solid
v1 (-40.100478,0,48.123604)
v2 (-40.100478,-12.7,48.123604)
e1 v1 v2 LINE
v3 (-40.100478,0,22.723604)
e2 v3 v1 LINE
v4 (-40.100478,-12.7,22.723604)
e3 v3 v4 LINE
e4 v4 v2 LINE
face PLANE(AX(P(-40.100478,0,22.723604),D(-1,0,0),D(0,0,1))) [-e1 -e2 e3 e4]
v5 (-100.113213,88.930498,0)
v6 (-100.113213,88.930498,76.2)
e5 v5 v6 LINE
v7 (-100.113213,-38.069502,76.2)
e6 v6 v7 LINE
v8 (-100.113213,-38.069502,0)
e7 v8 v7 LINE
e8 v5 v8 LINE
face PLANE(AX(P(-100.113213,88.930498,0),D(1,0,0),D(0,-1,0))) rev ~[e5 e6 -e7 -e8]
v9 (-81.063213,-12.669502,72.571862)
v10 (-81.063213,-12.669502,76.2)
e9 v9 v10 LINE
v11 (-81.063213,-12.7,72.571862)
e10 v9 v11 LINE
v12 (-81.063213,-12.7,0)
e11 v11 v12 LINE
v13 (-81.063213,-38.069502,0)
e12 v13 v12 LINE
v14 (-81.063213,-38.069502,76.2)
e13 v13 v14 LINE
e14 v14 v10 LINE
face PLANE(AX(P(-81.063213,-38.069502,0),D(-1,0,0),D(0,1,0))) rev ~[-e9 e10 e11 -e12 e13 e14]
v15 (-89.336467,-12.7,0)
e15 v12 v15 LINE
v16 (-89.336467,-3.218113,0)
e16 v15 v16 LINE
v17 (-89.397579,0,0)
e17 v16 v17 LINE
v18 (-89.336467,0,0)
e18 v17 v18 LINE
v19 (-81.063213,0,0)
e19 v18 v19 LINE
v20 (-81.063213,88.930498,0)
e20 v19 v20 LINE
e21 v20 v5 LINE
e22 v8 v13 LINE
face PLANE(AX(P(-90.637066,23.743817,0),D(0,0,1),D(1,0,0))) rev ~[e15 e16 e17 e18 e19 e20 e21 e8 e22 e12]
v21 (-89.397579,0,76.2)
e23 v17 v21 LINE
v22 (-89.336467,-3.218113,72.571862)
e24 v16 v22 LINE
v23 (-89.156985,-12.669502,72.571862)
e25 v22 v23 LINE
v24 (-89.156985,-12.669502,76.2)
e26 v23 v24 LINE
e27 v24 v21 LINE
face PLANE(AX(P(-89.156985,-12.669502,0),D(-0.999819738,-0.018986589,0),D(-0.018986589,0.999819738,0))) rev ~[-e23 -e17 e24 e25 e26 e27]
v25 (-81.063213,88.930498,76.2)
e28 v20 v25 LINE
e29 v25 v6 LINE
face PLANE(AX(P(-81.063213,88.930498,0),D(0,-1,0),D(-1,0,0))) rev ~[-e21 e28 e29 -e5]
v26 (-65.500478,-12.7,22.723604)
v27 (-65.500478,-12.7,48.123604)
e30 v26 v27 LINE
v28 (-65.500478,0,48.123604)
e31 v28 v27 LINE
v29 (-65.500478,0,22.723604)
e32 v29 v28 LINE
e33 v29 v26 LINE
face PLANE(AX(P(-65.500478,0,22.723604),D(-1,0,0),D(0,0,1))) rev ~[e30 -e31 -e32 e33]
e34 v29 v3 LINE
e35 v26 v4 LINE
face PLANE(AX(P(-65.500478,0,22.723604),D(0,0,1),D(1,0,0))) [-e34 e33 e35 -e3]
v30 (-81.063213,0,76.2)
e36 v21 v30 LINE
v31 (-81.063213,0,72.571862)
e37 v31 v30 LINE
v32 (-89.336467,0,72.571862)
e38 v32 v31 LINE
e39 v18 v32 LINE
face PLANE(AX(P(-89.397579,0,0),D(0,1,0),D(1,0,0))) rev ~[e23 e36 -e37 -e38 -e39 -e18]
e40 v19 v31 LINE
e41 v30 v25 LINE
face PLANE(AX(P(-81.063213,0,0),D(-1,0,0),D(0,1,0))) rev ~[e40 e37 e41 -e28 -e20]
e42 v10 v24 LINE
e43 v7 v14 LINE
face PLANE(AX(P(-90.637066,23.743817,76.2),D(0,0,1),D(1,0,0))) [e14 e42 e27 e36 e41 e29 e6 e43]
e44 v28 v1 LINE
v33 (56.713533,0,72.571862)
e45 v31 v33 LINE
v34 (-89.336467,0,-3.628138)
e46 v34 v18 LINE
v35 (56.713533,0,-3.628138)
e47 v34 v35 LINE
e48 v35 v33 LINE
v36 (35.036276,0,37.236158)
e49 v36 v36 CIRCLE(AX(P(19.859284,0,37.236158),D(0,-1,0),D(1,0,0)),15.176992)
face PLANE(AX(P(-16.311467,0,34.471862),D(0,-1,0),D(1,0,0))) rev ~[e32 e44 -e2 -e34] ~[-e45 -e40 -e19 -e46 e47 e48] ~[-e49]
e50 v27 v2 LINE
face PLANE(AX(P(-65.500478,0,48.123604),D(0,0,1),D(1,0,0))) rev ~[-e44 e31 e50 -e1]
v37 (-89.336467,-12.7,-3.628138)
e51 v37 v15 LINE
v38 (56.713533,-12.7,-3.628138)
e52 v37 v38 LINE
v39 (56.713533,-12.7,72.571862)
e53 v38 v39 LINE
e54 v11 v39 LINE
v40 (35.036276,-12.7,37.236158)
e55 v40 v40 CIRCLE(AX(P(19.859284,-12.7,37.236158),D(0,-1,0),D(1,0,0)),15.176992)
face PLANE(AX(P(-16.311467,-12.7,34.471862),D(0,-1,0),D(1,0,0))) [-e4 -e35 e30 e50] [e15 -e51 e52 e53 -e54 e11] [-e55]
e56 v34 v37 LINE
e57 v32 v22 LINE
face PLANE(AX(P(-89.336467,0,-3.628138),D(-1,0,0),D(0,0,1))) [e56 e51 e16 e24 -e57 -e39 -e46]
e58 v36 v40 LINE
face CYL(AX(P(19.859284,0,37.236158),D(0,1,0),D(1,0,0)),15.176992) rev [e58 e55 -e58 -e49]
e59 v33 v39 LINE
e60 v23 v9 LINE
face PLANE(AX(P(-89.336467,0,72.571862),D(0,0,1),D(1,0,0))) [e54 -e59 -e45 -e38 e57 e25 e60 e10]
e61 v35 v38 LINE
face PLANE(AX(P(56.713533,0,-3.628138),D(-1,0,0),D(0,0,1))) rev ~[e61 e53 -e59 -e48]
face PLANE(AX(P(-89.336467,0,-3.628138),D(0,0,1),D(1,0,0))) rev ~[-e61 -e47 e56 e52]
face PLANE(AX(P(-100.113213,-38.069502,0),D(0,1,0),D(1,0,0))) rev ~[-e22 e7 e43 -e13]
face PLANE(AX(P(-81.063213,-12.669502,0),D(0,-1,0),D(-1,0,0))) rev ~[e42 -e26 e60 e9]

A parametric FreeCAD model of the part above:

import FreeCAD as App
import Part
import Sketcher
from FreeCAD import Vector
Q = App.Units.Quantity


def add_polygon(sketch, points):
    """Adds a closed chain of lines whose ends are joined by coincident constraints."""
    first, n = sketch.GeometryCount, len(points)
    for a, b in zip(points, points[1:] + points[:1]):
        sketch.addGeometry(Part.LineSegment(App.Vector(*a, 0), App.Vector(*b, 0)), False)
    for i in range(n):
        sketch.addConstraint(Sketcher.Constraint("Coincident", first + i, 2, first + (i + 1) % n, 1))

doc = App.newDocument("Part")
params = doc.addObject("Spreadsheet::Sheet", "Params")
for row, (alias, value) in enumerate([
    ("sketch1_width", "1 in"),
    ("sketch1_height", "3 in"),
    ("sketch1_width2", "5.75 in"),
    ("pad1_length", "0.5 in"),
    ("sketch2_height", "1 in"),
    ("sketch2_height2", "5 in"),
    ("sketch2_width", "0.75 in"),
    ("pad2_length", "3 in"),
], start=1):
    params.set(f"A{row}", alias)
    params.set(f"B{row}", "=" + value)
    params.setAlias(f"B{row}", alias)

body = doc.addObject("PartDesign::Body", "Body")

sketch1 = doc.addObject("Sketcher::SketchObject", "Sketch")
body.addObject(sketch1)
sketch1.AttachmentSupport = (doc.XZ_Plane, [""])
sketch1.MapMode = "FlatFace"
add_polygon(sketch1, [(-89.336467, 72.571862), (-89.336467, -3.628138), (56.713533, -3.628138), (56.713533, 72.571862)])
add_polygon(sketch1, [(-40.100478, 22.723604), (-65.500478, 22.723604), (-65.500478, 48.123604), (-40.100478, 48.123604)])
sketch1.addGeometry(Part.Circle(Vector(19.859284, 37.236158, 0), Vector(0, 0, 1), 15.176992), False)
sketch1.addConstraint([
    Sketcher.Constraint("Vertical", 0),
    Sketcher.Constraint("Horizontal", 1),
    Sketcher.Constraint("Vertical", 2),
    Sketcher.Constraint("Horizontal", 3),
    Sketcher.Constraint("Horizontal", 4),
    Sketcher.Constraint("Vertical", 5),
    Sketcher.Constraint("Horizontal", 6),
    Sketcher.Constraint("Vertical", 7),
    Sketcher.Constraint("Equal", 6, 5),
    Sketcher.Constraint("DistanceX", 4, 2, 4, 1, Q("1 in")),
    Sketcher.Constraint("DistanceY", 0, 2, 0, 1, Q("3 in")),
    Sketcher.Constraint("DistanceX", 1, 1, 1, 2, Q("5.75 in")),
    Sketcher.Constraint("Diameter", 8, 30.353984),
    Sketcher.Constraint("DistanceY", -1, 1, 8, 3, 37.236158),
    Sketcher.Constraint("DistanceY", -1, 1, 2, 2, 72.571862),
    Sketcher.Constraint("DistanceX", 4, 2, -1, 1, 65.500478),
    Sketcher.Constraint("DistanceX", 0, 2, 8, 3, 109.195751),
    Sketcher.Constraint("DistanceX", 0, 2, 4, 2, 23.835989),
    Sketcher.Constraint("DistanceY", -1, 1, 4, 2, 22.723604),
])
sketch1.setExpression("Constraints[17]", "Params.sketch1_width")
sketch1.setExpression("Constraints[18]", "Params.sketch1_height")
sketch1.setExpression("Constraints[19]", "Params.sketch1_width2")
pad1 = doc.addObject("PartDesign::Pad", "Pad")
body.addObject(pad1)
pad1.Profile = sketch1
pad1.setExpression("Length", "Params.pad1_length")

sketch2 = doc.addObject("Sketcher::SketchObject", "Sketch001")
body.addObject(sketch2)
sketch2.AttachmentSupport = (doc.XY_Plane, [""])
sketch2.MapMode = "FlatFace"
add_polygon(sketch2, [(-100.113213, -38.069502), (-81.063213, -38.069502), (-81.063213, -12.669502), (-89.156985, -12.669502), (-89.397579, 0), (-81.063213, 0), (-81.063213, 88.930498), (-100.113213, 88.930498)])
sketch2.addConstraint([
    Sketcher.Constraint("Horizontal", 0),
    Sketcher.Constraint("Vertical", 1),
    Sketcher.Constraint("Horizontal", 2),
    Sketcher.Constraint("Horizontal", 4),
    Sketcher.Constraint("Vertical", 5),
    Sketcher.Constraint("Horizontal", 6),
    Sketcher.Constraint("Vertical", 7),
    Sketcher.Constraint("PointOnObject", 3, 2, -1),
    Sketcher.Constraint("Vertical", 1, 2, 4, 2),
    Sketcher.Constraint("DistanceY", 1, 1, 1, 2, Q("1 in")),
    Sketcher.Constraint("DistanceY", 7, 2, 7, 1, Q("5 in")),
    Sketcher.Constraint("DistanceX", 0, 1, 0, 2, Q("0.75 in")),
    Sketcher.Constraint("DistanceY", 5, 1, 5, 2, 88.930498),
    Sketcher.Constraint("DistanceX", 2, 2, 2, 1, 8.093772),
    Sketcher.Constraint("DistanceX", 4, 1, 4, 2, 8.334366),
    Sketcher.Constraint("DistanceX", 3, 2, -1, 1, 89.397579),
])
sketch2.setExpression("Constraints[17]", "Params.sketch2_height")
sketch2.setExpression("Constraints[18]", "Params.sketch2_height2")
sketch2.setExpression("Constraints[19]", "Params.sketch2_width")
pad2 = doc.addObject("PartDesign::Pad", "Pad001")
body.addObject(pad2)
pad2.Profile = sketch2
pad2.setExpression("Length", "Params.pad2_length")

doc.recompute()
